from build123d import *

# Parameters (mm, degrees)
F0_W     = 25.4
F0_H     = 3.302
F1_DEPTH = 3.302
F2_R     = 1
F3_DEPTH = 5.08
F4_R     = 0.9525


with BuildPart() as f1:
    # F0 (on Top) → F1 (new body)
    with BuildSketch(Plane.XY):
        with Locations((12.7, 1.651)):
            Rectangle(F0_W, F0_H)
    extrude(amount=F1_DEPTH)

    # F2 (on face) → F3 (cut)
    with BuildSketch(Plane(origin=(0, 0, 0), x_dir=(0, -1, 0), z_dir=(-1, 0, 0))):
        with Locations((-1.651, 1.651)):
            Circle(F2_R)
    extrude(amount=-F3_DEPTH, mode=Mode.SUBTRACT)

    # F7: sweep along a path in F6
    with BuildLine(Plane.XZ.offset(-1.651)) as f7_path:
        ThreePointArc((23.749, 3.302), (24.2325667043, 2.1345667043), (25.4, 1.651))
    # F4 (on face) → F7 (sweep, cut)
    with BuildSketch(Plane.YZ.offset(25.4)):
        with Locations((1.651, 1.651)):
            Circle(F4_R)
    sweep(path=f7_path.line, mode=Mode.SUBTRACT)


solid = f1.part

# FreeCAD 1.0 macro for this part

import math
import FreeCAD as App
import Part
import Sketcher
from FreeCAD import Vector
Q = App.Units.Quantity


def add_polygon(sketch, points):
    """Adds a closed chain of lines whose ends are joined by coincident constraints."""
    first, n = sketch.GeometryCount, len(points)
    for a, b in zip(points, points[1:] + points[:1]):
        sketch.addGeometry(Part.LineSegment(App.Vector(*a, 0), App.Vector(*b, 0)), False)
    for i in range(n):
        sketch.addConstraint(Sketcher.Constraint("Coincident", first + i, 2, first + (i + 1) % n, 1))

doc = App.newDocument("Part")
body = doc.addObject("PartDesign::Body", "Body")

sketch1 = body.newObject("Sketcher::SketchObject", "Sketch")
sketch1.AttachmentSupport = (doc.getObject("XY_Plane"), [""])
sketch1.MapMode = "FlatFace"
add_polygon(sketch1, [(0, 3.3), (0, 0), (25.4, 0), (25.4, 3.3)])
sketch1.addConstraint([
    Sketcher.Constraint("Vertical", 0),
    Sketcher.Constraint("Horizontal", 1),
    Sketcher.Constraint("Vertical", 2),
    Sketcher.Constraint("Horizontal", 3),
    Sketcher.Constraint("Coincident", 0, 2, -1, 1),
    Sketcher.Constraint("DistanceX", 1, 1, 1, 2, Q("1 in")),
    Sketcher.Constraint("DistanceY", 0, 2, 0, 1, Q("0.13 in")),
])
pad1 = body.newObject("PartDesign::Pad", "Pad")
pad1.Profile = sketch1
pad1.Length = Q("0.13 in")

sketch2 = body.newObject("Sketcher::SketchObject", "Sketch001")
sketch2.AttachmentSupport = (doc.getObject("YZ_Plane"), [""])
sketch2.MapMode = "FlatFace"
sketch2.addGeometry(Part.Circle(Vector(1.7, 1.7, 0), Vector(0, 0, 1), 1), False)
sketch2.addConstraint([
    Sketcher.Constraint("Diameter", 0, 2.0),
    Sketcher.Constraint("DistanceX", -1, 1, 0, 3, Q("0.065 in")),
    Sketcher.Constraint("DistanceY", -1, 1, 0, 3, Q("0.065 in")),
])
pocket1 = body.newObject("PartDesign::Pocket", "Pocket")
pocket1.Profile = sketch2
pocket1.Length = Q("0.2 in")
pocket1.Reversed = True

sketch3 = body.newObject("Sketcher::SketchObject", "Sketch002")
sketch3.AttachmentSupport = (doc.getObject("YZ_Plane"), [""])
sketch3.MapMode = "FlatFace"
sketch3.AttachmentOffset = App.Placement(Vector(0, 0, 1 * 25.4), App.Rotation())
sketch3.addGeometry(Part.Circle(Vector(1.7, 1.7, 0), Vector(0, 0, 1), 1), False)
sketch3.addConstraint([
    Sketcher.Constraint("Diameter", 0, Q("0.075 in")),
    Sketcher.Constraint("DistanceX", -1, 1, 0, 3, Q("0.065 in")),
    Sketcher.Constraint("DistanceY", -1, 1, 0, 3, Q("0.065 in")),
])

sketch4 = body.newObject("Sketcher::SketchObject", "Sketch003")
sketch4.AttachmentSupport = (doc.getObject("XZ_Plane"), [""])
sketch4.MapMode = "FlatFace"
sketch4.AttachmentOffset = App.Placement(Vector(0, 0, -0.065 * 25.4), App.Rotation())
sketch4.addGeometry(Part.ArcOfCircle(Part.Circle(Vector(25.4, 3.3, 0), Vector(0, 0, 1), 1.7), math.radians(180), math.radians(270)), False)
sketch4.addConstraint([
    Sketcher.Constraint("DistanceX", -1, 1, 0, 3, Q("1 in")),
    Sketcher.Constraint("DistanceX", -1, 1, 0, 2, Q("1 in")),
    Sketcher.Constraint("Radius", 0, Q("0.065 in")),
    Sketcher.Constraint("DistanceY", -1, 1, 0, 3, Q("0.13 in")),
    Sketcher.Constraint("DistanceY", -1, 1, 0, 1, Q("0.13 in")),
])
doc.recompute()

subtractivepipe = body.newObject("PartDesign::SubtractivePipe", "SubtractivePipe")
subtractivepipe.Profile = sketch3
subtractivepipe.Spine = (sketch4, ["Edge1"])

doc.recompute()
